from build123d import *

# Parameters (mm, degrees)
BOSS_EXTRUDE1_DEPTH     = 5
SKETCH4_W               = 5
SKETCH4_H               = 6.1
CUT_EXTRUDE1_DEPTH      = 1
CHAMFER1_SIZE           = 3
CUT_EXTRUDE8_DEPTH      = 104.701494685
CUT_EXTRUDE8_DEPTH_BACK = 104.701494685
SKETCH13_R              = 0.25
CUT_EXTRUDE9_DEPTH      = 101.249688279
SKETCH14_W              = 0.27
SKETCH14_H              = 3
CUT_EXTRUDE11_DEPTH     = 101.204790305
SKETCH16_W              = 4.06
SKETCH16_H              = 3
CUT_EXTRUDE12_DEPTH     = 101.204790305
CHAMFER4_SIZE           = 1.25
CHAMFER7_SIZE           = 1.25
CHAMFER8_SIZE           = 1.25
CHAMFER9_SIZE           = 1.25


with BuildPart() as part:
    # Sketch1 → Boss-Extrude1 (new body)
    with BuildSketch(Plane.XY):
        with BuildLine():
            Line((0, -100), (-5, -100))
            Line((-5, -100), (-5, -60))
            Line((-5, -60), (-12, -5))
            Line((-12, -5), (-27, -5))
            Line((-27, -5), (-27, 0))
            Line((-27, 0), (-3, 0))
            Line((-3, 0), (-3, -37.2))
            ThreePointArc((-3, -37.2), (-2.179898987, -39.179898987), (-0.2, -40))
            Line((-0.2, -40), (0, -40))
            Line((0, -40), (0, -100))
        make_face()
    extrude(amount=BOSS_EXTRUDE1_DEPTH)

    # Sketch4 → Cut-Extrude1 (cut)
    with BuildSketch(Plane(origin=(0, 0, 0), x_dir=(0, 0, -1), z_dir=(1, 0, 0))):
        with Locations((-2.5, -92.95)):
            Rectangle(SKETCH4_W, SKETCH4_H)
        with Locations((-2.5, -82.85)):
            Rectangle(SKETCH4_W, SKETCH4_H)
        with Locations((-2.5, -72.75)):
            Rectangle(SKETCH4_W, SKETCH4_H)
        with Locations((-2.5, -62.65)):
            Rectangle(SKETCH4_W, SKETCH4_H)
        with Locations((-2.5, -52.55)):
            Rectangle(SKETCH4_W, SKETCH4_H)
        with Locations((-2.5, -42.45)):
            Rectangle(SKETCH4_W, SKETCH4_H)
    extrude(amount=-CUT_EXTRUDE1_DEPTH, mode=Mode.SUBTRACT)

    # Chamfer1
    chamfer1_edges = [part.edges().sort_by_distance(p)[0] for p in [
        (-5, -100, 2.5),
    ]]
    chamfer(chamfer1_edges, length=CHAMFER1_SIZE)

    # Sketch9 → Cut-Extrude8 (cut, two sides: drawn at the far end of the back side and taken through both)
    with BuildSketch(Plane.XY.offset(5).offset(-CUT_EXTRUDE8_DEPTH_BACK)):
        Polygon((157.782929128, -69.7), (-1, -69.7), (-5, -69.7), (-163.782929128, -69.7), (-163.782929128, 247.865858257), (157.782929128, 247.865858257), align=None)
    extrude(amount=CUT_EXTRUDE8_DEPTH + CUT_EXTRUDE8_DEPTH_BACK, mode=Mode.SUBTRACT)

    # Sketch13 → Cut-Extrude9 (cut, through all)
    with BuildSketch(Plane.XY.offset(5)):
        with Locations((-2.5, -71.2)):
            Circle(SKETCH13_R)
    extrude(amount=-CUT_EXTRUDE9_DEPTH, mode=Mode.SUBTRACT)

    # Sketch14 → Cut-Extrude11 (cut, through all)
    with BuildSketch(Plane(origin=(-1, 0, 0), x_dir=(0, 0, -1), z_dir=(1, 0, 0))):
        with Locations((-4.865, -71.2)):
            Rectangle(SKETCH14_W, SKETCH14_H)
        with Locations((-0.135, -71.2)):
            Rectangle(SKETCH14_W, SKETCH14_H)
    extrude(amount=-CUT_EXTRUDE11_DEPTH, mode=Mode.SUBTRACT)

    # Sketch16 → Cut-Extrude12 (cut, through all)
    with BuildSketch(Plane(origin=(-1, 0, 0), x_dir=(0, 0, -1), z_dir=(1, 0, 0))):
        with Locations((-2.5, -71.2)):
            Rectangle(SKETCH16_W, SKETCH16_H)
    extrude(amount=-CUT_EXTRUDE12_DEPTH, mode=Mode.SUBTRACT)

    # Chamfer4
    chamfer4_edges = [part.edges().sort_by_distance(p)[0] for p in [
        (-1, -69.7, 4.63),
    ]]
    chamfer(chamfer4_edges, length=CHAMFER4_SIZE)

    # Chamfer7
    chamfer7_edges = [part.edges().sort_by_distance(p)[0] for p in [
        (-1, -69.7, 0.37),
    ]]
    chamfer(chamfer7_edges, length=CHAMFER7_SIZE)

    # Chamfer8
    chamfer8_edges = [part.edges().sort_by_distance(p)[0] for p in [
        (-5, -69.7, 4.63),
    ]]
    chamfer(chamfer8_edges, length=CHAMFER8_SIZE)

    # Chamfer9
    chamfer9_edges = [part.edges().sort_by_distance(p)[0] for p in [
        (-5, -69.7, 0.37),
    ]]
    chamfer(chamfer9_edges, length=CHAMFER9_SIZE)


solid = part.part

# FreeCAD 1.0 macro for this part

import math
import FreeCAD as App
import Part
import Sketcher
Q = App.Units.Quantity


def edges_at(feature, points):
    """Names of the edges that pass closest to the given points."""
    edges = feature.Shape.Edges
    near = lambda p: min(range(len(edges)), key=lambda i: edges[i].distToShape(Part.Vertex(*p))[0])
    return sorted({f"Edge{near(p) + 1}" for p in points})

doc = App.newDocument("Part")
params = doc.addObject("Spreadsheet::Sheet", "Params")
for row, (alias, value) in enumerate([
    ("sketch1_radius", "2.8 mm"),
    ("sketch1_width", "5 mm"),
    ("sketch1_width2", "24 mm"),
    ("sketch1_width3", "15 mm"),
    ("sketch1_height", "60 mm"),
    ("pad1_length", "5 mm"),
    ("sketch2_height", "5 mm"),
    ("sketch2_width", "6.1 mm"),
    ("pocket1_length", "1 mm"),
    ("chamfer_size", "3 mm"),
    ("sketch4_diameter", "0.5 mm"),
    ("sketch5_width", "3 mm"),
    ("sketch5_height", "0.27 mm"),
    ("sketch6_width", "3 mm"),
    ("sketch6_height", "4.06 mm"),
    ("chamfer2_size", "1.25 mm"),
    ("chamfer3_size", "1.25 mm"),
    ("chamfer4_size", "1.25 mm"),
    ("chamfer5_size", "1.25 mm"),
], start=1):
    params.set(f"A{row}", alias)
    params.set(f"B{row}", "=" + value)
    params.setAlias(f"B{row}", alias)

body = doc.addObject("PartDesign::Body", "Body")

# Sketch on XY plane
sketch1 = doc.addObject("Sketcher::SketchObject", "Sketch")
body.addObject(sketch1)
sketch1.AttachmentSupport = (doc.XY_Plane, [""])
sketch1.MapMode = "FlatFace"
sketch1.addGeometry([
    Part.LineSegment(App.Vector(-5, -100, 0), App.Vector(0, -100, 0)),  # 0
    Part.LineSegment(App.Vector(0, -100, 0), App.Vector(0, -40, 0)),  # 1
    Part.LineSegment(App.Vector(0, -40, 0), App.Vector(-0.2, -40, 0)),  # 2
    Part.ArcOfCircle(Part.Circle(App.Vector(-0.2, -37.2, 0), App.Vector(0, 0, 1), 2.8), math.radians(-180), math.radians(-90)),  # 3
    Part.LineSegment(App.Vector(-3, -37.2, 0), App.Vector(-3, 0, 0)),  # 4
    Part.LineSegment(App.Vector(-3, 0, 0), App.Vector(-27, 0, 0)),  # 5
    Part.LineSegment(App.Vector(-27, 0, 0), App.Vector(-27, -5, 0)),  # 6
    Part.LineSegment(App.Vector(-27, -5, 0), App.Vector(-12, -5, 0)),  # 7
    Part.LineSegment(App.Vector(-12, -5, 0), App.Vector(-5, -60, 0)),  # 8
    Part.LineSegment(App.Vector(-5, -60, 0), App.Vector(-5, -100, 0)),  # 9
], False)
sketch1.addConstraint([
    Sketcher.Constraint("Coincident", 0, 2, 1, 1),
    Sketcher.Constraint("Coincident", 1, 2, 2, 1),
    Sketcher.Constraint("Tangent", 2, 2, 3, 2),
    Sketcher.Constraint("Tangent", 3, 1, 4, 1),
    Sketcher.Constraint("Coincident", 4, 2, 5, 1),
    Sketcher.Constraint("Coincident", 5, 2, 6, 1),
    Sketcher.Constraint("Coincident", 6, 2, 7, 1),
    Sketcher.Constraint("Coincident", 7, 2, 8, 1),
    Sketcher.Constraint("Coincident", 8, 2, 9, 1),
    Sketcher.Constraint("Coincident", 9, 2, 0, 1),
    Sketcher.Constraint("Horizontal", 0),
    Sketcher.Constraint("Vertical", 1),
    Sketcher.Constraint("Horizontal", 2),
    Sketcher.Constraint("Vertical", 4),
    Sketcher.Constraint("Horizontal", 5),
    Sketcher.Constraint("Vertical", 6),
    Sketcher.Constraint("Horizontal", 7),
    Sketcher.Constraint("Vertical", 9),
    Sketcher.Constraint("PointOnObject", 0, 2, -2),
    Sketcher.Constraint("PointOnObject", 4, 2, -1),
    Sketcher.Constraint("Equal", 0, 6),
    Sketcher.Constraint("Radius", 3, Q("2.8 mm")),
    Sketcher.Constraint("DistanceX", 0, 1, 0, 2, Q("5 mm")),
    Sketcher.Constraint("DistanceX", 5, 2, 5, 1, Q("24 mm")),
    Sketcher.Constraint("DistanceX", 7, 1, 7, 2, Q("15 mm")),
    Sketcher.Constraint("DistanceY", 1, 1, 1, 2, Q("60 mm")),
    Sketcher.Constraint("DistanceY", 9, 2, 9, 1, Q("40 mm")),
    Sketcher.Constraint("DistanceX", 2, 2, 2, 1, Q("0.2 mm")),
    Sketcher.Constraint("DistanceY", 4, 1, 4, 2, Q("37.2 mm")),
])
sketch1.setExpression("Constraints[21]", "Params.sketch1_radius")
sketch1.setExpression("Constraints[22]", "Params.sketch1_width")
sketch1.setExpression("Constraints[23]", "Params.sketch1_width2")
sketch1.setExpression("Constraints[24]", "Params.sketch1_width3")
sketch1.setExpression("Constraints[25]", "Params.sketch1_height")
pad1 = doc.addObject("PartDesign::Pad", "Pad")
body.addObject(pad1)
pad1.Profile = sketch1
pad1.setExpression("Length", "Params.pad1_length")

# Sketch on YZ plane
sketch2 = doc.addObject("Sketcher::SketchObject", "Sketch001")
body.addObject(sketch2)
sketch2.AttachmentSupport = (doc.YZ_Plane, [""])
sketch2.MapMode = "FlatFace"
sketch2.addGeometry([
    Part.LineSegment(App.Vector(-90, 5, 0), App.Vector(-96, 5, 0)),  # 0
    Part.LineSegment(App.Vector(-96, 5, 0), App.Vector(-96, 0, 0)),  # 1
    Part.LineSegment(App.Vector(-96, 0, 0), App.Vector(-90, 0, 0)),  # 2
    Part.LineSegment(App.Vector(-90, 0, 0), App.Vector(-90, 5, 0)),  # 3
    Part.LineSegment(App.Vector(-80, 5, 0), App.Vector(-86, 5, 0)),  # 4
    Part.LineSegment(App.Vector(-86, 5, 0), App.Vector(-86, 0, 0)),  # 5
    Part.LineSegment(App.Vector(-86, 0, 0), App.Vector(-80, 0, 0)),  # 6
    Part.LineSegment(App.Vector(-80, 0, 0), App.Vector(-80, 5, 0)),  # 7
    Part.LineSegment(App.Vector(-70, 5, 0), App.Vector(-76, 5, 0)),  # 8
    Part.LineSegment(App.Vector(-76, 5, 0), App.Vector(-76, 0, 0)),  # 9
    Part.LineSegment(App.Vector(-76, 0, 0), App.Vector(-70, 0, 0)),  # 10
    Part.LineSegment(App.Vector(-70, 0, 0), App.Vector(-70, 5, 0)),  # 11
    Part.LineSegment(App.Vector(-60, 5, 0), App.Vector(-66, 5, 0)),  # 12
    Part.LineSegment(App.Vector(-66, 5, 0), App.Vector(-66, 0, 0)),  # 13
    Part.LineSegment(App.Vector(-66, 0, 0), App.Vector(-60, 0, 0)),  # 14
    Part.LineSegment(App.Vector(-60, 0, 0), App.Vector(-60, 5, 0)),  # 15
    Part.LineSegment(App.Vector(-50, 5, 0), App.Vector(-56, 5, 0)),  # 16
    Part.LineSegment(App.Vector(-56, 5, 0), App.Vector(-56, 0, 0)),  # 17
    Part.LineSegment(App.Vector(-56, 0, 0), App.Vector(-50, 0, 0)),  # 18
    Part.LineSegment(App.Vector(-50, 0, 0), App.Vector(-50, 5, 0)),  # 19
    Part.LineSegment(App.Vector(-39, 5, 0), App.Vector(-46, 5, 0)),  # 20
    Part.LineSegment(App.Vector(-46, 5, 0), App.Vector(-46, 0, 0)),  # 21
    Part.LineSegment(App.Vector(-46, 0, 0), App.Vector(-39, 0, 0)),  # 22
    Part.LineSegment(App.Vector(-39, 0, 0), App.Vector(-39, 5, 0)),  # 23
], False)
sketch2.addConstraint([
    Sketcher.Constraint("Coincident", 0, 2, 1, 1),
    Sketcher.Constraint("Coincident", 1, 2, 2, 1),
    Sketcher.Constraint("Coincident", 2, 2, 3, 1),
    Sketcher.Constraint("Coincident", 3, 2, 0, 1),
    Sketcher.Constraint("Coincident", 4, 2, 5, 1),
    Sketcher.Constraint("Coincident", 5, 2, 6, 1),
    Sketcher.Constraint("Coincident", 6, 2, 7, 1),
    Sketcher.Constraint("Coincident", 7, 2, 4, 1),
    Sketcher.Constraint("Coincident", 8, 2, 9, 1),
    Sketcher.Constraint("Coincident", 9, 2, 10, 1),
    Sketcher.Constraint("Coincident", 10, 2, 11, 1),
    Sketcher.Constraint("Coincident", 11, 2, 8, 1),
    Sketcher.Constraint("Coincident", 12, 2, 13, 1),
    Sketcher.Constraint("Coincident", 13, 2, 14, 1),
    Sketcher.Constraint("Coincident", 14, 2, 15, 1),
    Sketcher.Constraint("Coincident", 15, 2, 12, 1),
    Sketcher.Constraint("Coincident", 16, 2, 17, 1),
    Sketcher.Constraint("Coincident", 17, 2, 18, 1),
    Sketcher.Constraint("Coincident", 18, 2, 19, 1),
    Sketcher.Constraint("Coincident", 19, 2, 16, 1),
    Sketcher.Constraint("Coincident", 20, 2, 21, 1),
    Sketcher.Constraint("Coincident", 21, 2, 22, 1),
    Sketcher.Constraint("Coincident", 22, 2, 23, 1),
    Sketcher.Constraint("Coincident", 23, 2, 20, 1),
    Sketcher.Constraint("Horizontal", 0),
    Sketcher.Constraint("Vertical", 1),
    Sketcher.Constraint("Horizontal", 2),
    Sketcher.Constraint("Vertical", 3),
    Sketcher.Constraint("Horizontal", 4),
    Sketcher.Constraint("Vertical", 5),
    Sketcher.Constraint("Horizontal", 6),
    Sketcher.Constraint("Vertical", 7),
    Sketcher.Constraint("Horizontal", 8),
    Sketcher.Constraint("Vertical", 9),
    Sketcher.Constraint("Horizontal", 10),
    Sketcher.Constraint("Vertical", 11),
    Sketcher.Constraint("Horizontal", 12),
    Sketcher.Constraint("Vertical", 13),
    Sketcher.Constraint("Horizontal", 14),
    Sketcher.Constraint("Vertical", 15),
    Sketcher.Constraint("Horizontal", 16),
    Sketcher.Constraint("Vertical", 17),
    Sketcher.Constraint("Horizontal", 18),
    Sketcher.Constraint("Vertical", 19),
    Sketcher.Constraint("Horizontal", 20),
    Sketcher.Constraint("Vertical", 21),
    Sketcher.Constraint("Horizontal", 22),
    Sketcher.Constraint("Vertical", 23),
    Sketcher.Constraint("PointOnObject", 1, 2, -1),
    Sketcher.Constraint("PointOnObject", 5, 2, -1),
    Sketcher.Constraint("PointOnObject", 9, 2, -1),
    Sketcher.Constraint("PointOnObject", 13, 2, -1),
    Sketcher.Constraint("PointOnObject", 17, 2, -1),
    Sketcher.Constraint("PointOnObject", 21, 2, -1),
    Sketcher.Constraint("Horizontal", 3, 2, 4, 2),
    Sketcher.Constraint("Horizontal", 7, 2, 8, 2),
    Sketcher.Constraint("Horizontal", 11, 2, 12, 2),
    Sketcher.Constraint("Horizontal", 15, 2, 16, 2),
    Sketcher.Constraint("Horizontal", 19, 2, 20, 2),
    Sketcher.Constraint("Equal", 2, 4),
    Sketcher.Constraint("Equal", 6, 8),
    Sketcher.Constraint("Equal", 10, 12),
    Sketcher.Constraint("Equal", 14, 16),
    Sketcher.Constraint("Equal", 18, 20),
    Sketcher.Constraint("DistanceY", 1, 2, 1, 1, Q("5 mm")),
    Sketcher.Constraint("DistanceX", 0, 2, 0, 1, Q("6.1 mm")),
    Sketcher.Constraint("DistanceX", 0, 2, -1, 1, Q("96 mm")),
    Sketcher.Constraint("DistanceX", 3, 2, 4, 2, Q("4 mm")),
    Sketcher.Constraint("DistanceX", 7, 2, 8, 2, Q("4 mm")),
    Sketcher.Constraint("DistanceX", 11, 2, 12, 2, Q("4 mm")),
    Sketcher.Constraint("DistanceX", 15, 2, 16, 2, Q("4 mm")),
    Sketcher.Constraint("DistanceX", 19, 2, 20, 2, Q("4 mm")),
])
sketch2.setExpression("Constraints[64]", "Params.sketch2_height")
sketch2.setExpression("Constraints[65]", "Params.sketch2_width")
pocket1 = doc.addObject("PartDesign::Pocket", "Pocket")
body.addObject(pocket1)
pocket1.Profile = sketch2
pocket1.setExpression("Length", "Params.pocket1_length")
doc.recompute()

chamfer = doc.addObject("PartDesign::Chamfer", "Chamfer")
body.addObject(chamfer)
chamfer.Base = (pocket1, edges_at(pocket1, [(-5, -100, 2.5)]))
chamfer.setExpression("Size", "Params.chamfer_size")

# Sketch on XY plane
sketch3 = doc.addObject("Sketcher::SketchObject", "Sketch002")
body.addObject(sketch3)
sketch3.AttachmentSupport = (doc.XY_Plane, [""])
sketch3.MapMode = "FlatFace"
sketch3.AttachmentOffset = App.Placement(App.Vector(0, 0, 5), App.Rotation())
sketch3.addGeometry([
    Part.LineSegment(App.Vector(-164, -70, 0), App.Vector(158, -70, 0)),
    Part.LineSegment(App.Vector(158, -70, 0), App.Vector(158, 248, 0)),
    Part.LineSegment(App.Vector(158, 248, 0), App.Vector(-164, 248, 0)),
    Part.LineSegment(App.Vector(-164, 248, 0), App.Vector(-164, -70, 0)),
], False)
sketch3.addConstraint([
    Sketcher.Constraint("Coincident", 0, 2, 1, 1),
    Sketcher.Constraint("Coincident", 1, 2, 2, 1),
    Sketcher.Constraint("Coincident", 2, 2, 3, 1),
    Sketcher.Constraint("Coincident", 3, 2, 0, 1),
    Sketcher.Constraint("Horizontal", 0),
    Sketcher.Constraint("Vertical", 1),
    Sketcher.Constraint("Horizontal", 2),
    Sketcher.Constraint("Vertical", 3),
    Sketcher.Constraint("DistanceY", 0, 2, -1, 1, Q("69.7 mm")),
    Sketcher.Constraint("DistanceX", 0, 1, 0, 2, Q("321.565858 mm")),
    Sketcher.Constraint("DistanceY", 1, 1, 1, 2, Q("317.565858 mm")),
    Sketcher.Constraint("DistanceX", -1, 1, 0, 2, Q("157.782929 mm")),
])
pocket2 = doc.addObject("PartDesign::Pocket", "Pocket001")
body.addObject(pocket2)
pocket2.Profile = sketch3
pocket2.Type = "ThroughAll"
pocket2.Midplane = True

# Sketch on XY plane
sketch4 = doc.addObject("Sketcher::SketchObject", "Sketch003")
body.addObject(sketch4)
sketch4.AttachmentSupport = (doc.XY_Plane, [""])
sketch4.MapMode = "FlatFace"
sketch4.AttachmentOffset = App.Placement(App.Vector(0, 0, 5), App.Rotation())
sketch4.addGeometry(Part.Circle(App.Vector(-2.5, -71.2, 0), App.Vector(0, 0, 1), 0.25), False)
sketch4.addConstraint([
    Sketcher.Constraint("Diameter", 0, Q("0.5 mm")),
    Sketcher.Constraint("DistanceX", 0, 3, -1, 1, Q("2.5 mm")),
    Sketcher.Constraint("DistanceY", 0, 3, -1, 1, Q("71.2 mm")),
])
sketch4.setExpression("Constraints[0]", "Params.sketch4_diameter")
pocket3 = doc.addObject("PartDesign::Pocket", "Pocket002")
body.addObject(pocket3)
pocket3.Profile = sketch4
pocket3.Type = "ThroughAll"

# Sketch on YZ plane
sketch5 = doc.addObject("Sketcher::SketchObject", "Sketch004")
body.addObject(sketch5)
sketch5.AttachmentSupport = (doc.YZ_Plane, [""])
sketch5.MapMode = "FlatFace"
sketch5.AttachmentOffset = App.Placement(App.Vector(0, 0, -1), App.Rotation())
sketch5.addGeometry([
    Part.LineSegment(App.Vector(-69.7, 5, 0), App.Vector(-72.7, 5, 0)),  # 0
    Part.LineSegment(App.Vector(-72.7, 5, 0), App.Vector(-72.7, 4.73, 0)),  # 1
    Part.LineSegment(App.Vector(-72.7, 4.73, 0), App.Vector(-69.7, 4.73, 0)),  # 2
    Part.LineSegment(App.Vector(-69.7, 4.73, 0), App.Vector(-69.7, 5, 0)),  # 3
    Part.LineSegment(App.Vector(-69.7, 0.27, 0), App.Vector(-72.7, 0.27, 0)),  # 4
    Part.LineSegment(App.Vector(-72.7, 0.27, 0), App.Vector(-72.7, 0, 0)),  # 5
    Part.LineSegment(App.Vector(-72.7, 0, 0), App.Vector(-69.7, 0, 0)),  # 6
    Part.LineSegment(App.Vector(-69.7, 0, 0), App.Vector(-69.7, 0.27, 0)),  # 7
], False)
sketch5.addConstraint([
    Sketcher.Constraint("Coincident", 0, 2, 1, 1),
    Sketcher.Constraint("Coincident", 1, 2, 2, 1),
    Sketcher.Constraint("Coincident", 2, 2, 3, 1),
    Sketcher.Constraint("Coincident", 3, 2, 0, 1),
    Sketcher.Constraint("Coincident", 4, 2, 5, 1),
    Sketcher.Constraint("Coincident", 5, 2, 6, 1),
    Sketcher.Constraint("Coincident", 6, 2, 7, 1),
    Sketcher.Constraint("Coincident", 7, 2, 4, 1),
    Sketcher.Constraint("Horizontal", 0),
    Sketcher.Constraint("Vertical", 1),
    Sketcher.Constraint("Horizontal", 2),
    Sketcher.Constraint("Vertical", 3),
    Sketcher.Constraint("Horizontal", 4),
    Sketcher.Constraint("Vertical", 5),
    Sketcher.Constraint("Horizontal", 6),
    Sketcher.Constraint("Vertical", 7),
    Sketcher.Constraint("PointOnObject", 5, 2, -1),
    Sketcher.Constraint("Vertical", 1, 2, 4, 2),
    Sketcher.Constraint("Vertical", 3, 2, 6, 2),
    Sketcher.Constraint("Equal", 3, 5),
    Sketcher.Constraint("DistanceX", 0, 2, 0, 1, Q("3 mm")),
    Sketcher.Constraint("DistanceY", -1, 1, 0, 2, Q("5 mm")),
    Sketcher.Constraint("DistanceY", 1, 2, 1, 1, Q("0.27 mm")),
    Sketcher.Constraint("DistanceX", 0, 2, -1, 1, Q("72.7 mm")),
])
sketch5.setExpression("Constraints[20]", "Params.sketch5_width")
sketch5.setExpression("Constraints[22]", "Params.sketch5_height")
pocket4 = doc.addObject("PartDesign::Pocket", "Pocket003")
body.addObject(pocket4)
pocket4.Profile = sketch5
pocket4.Type = "ThroughAll"

# Sketch on YZ plane
sketch6 = doc.addObject("Sketcher::SketchObject", "Sketch005")
body.addObject(sketch6)
sketch6.AttachmentSupport = (doc.YZ_Plane, [""])
sketch6.MapMode = "FlatFace"
sketch6.AttachmentOffset = App.Placement(App.Vector(0, 0, -1), App.Rotation())
sketch6.addGeometry([
    Part.LineSegment(App.Vector(-69.7, 4.5, 0), App.Vector(-72.7, 4.5, 0)),
    Part.LineSegment(App.Vector(-72.7, 4.5, 0), App.Vector(-72.7, 0.5, 0)),
    Part.LineSegment(App.Vector(-72.7, 0.5, 0), App.Vector(-69.7, 0.5, 0)),
    Part.LineSegment(App.Vector(-69.7, 0.5, 0), App.Vector(-69.7, 4.5, 0)),
], False)
sketch6.addConstraint([
    Sketcher.Constraint("Coincident", 0, 2, 1, 1),
    Sketcher.Constraint("Coincident", 1, 2, 2, 1),
    Sketcher.Constraint("Coincident", 2, 2, 3, 1),
    Sketcher.Constraint("Coincident", 3, 2, 0, 1),
    Sketcher.Constraint("Horizontal", 0),
    Sketcher.Constraint("Vertical", 1),
    Sketcher.Constraint("Horizontal", 2),
    Sketcher.Constraint("Vertical", 3),
    Sketcher.Constraint("DistanceX", 0, 2, 0, 1, Q("3 mm")),
    Sketcher.Constraint("DistanceY", 1, 2, 1, 1, Q("4.06 mm")),
    Sketcher.Constraint("DistanceX", 0, 2, -1, 1, Q("72.7 mm")),
    Sketcher.Constraint("DistanceY", -1, 1, 0, 2, Q("4.53 mm")),
])
sketch6.setExpression("Constraints[8]", "Params.sketch6_width")
sketch6.setExpression("Constraints[9]", "Params.sketch6_height")
pocket5 = doc.addObject("PartDesign::Pocket", "Pocket004")
body.addObject(pocket5)
pocket5.Profile = sketch6
pocket5.Type = "ThroughAll"
doc.recompute()

chamfer2 = doc.addObject("PartDesign::Chamfer", "Chamfer001")
body.addObject(chamfer2)
chamfer2.Base = (pocket5, edges_at(pocket5, [(-1, -69.7, 4.63)]))
chamfer2.setExpression("Size", "Params.chamfer2_size")
doc.recompute()

chamfer3 = doc.addObject("PartDesign::Chamfer", "Chamfer002")
body.addObject(chamfer3)
chamfer3.Base = (chamfer2, edges_at(chamfer2, [(-1, -69.7, 0.37)]))
chamfer3.setExpression("Size", "Params.chamfer3_size")
doc.recompute()

chamfer4 = doc.addObject("PartDesign::Chamfer", "Chamfer003")
body.addObject(chamfer4)
chamfer4.Base = (chamfer3, edges_at(chamfer3, [(-5, -69.7, 4.63)]))
chamfer4.setExpression("Size", "Params.chamfer4_size")
doc.recompute()

chamfer5 = doc.addObject("PartDesign::Chamfer", "Chamfer004")
body.addObject(chamfer5)
chamfer5.Base = (chamfer4, edges_at(chamfer4, [(-5, -69.7, 0.37)]))
chamfer5.setExpression("Size", "Params.chamfer5_size")

doc.recompute()
